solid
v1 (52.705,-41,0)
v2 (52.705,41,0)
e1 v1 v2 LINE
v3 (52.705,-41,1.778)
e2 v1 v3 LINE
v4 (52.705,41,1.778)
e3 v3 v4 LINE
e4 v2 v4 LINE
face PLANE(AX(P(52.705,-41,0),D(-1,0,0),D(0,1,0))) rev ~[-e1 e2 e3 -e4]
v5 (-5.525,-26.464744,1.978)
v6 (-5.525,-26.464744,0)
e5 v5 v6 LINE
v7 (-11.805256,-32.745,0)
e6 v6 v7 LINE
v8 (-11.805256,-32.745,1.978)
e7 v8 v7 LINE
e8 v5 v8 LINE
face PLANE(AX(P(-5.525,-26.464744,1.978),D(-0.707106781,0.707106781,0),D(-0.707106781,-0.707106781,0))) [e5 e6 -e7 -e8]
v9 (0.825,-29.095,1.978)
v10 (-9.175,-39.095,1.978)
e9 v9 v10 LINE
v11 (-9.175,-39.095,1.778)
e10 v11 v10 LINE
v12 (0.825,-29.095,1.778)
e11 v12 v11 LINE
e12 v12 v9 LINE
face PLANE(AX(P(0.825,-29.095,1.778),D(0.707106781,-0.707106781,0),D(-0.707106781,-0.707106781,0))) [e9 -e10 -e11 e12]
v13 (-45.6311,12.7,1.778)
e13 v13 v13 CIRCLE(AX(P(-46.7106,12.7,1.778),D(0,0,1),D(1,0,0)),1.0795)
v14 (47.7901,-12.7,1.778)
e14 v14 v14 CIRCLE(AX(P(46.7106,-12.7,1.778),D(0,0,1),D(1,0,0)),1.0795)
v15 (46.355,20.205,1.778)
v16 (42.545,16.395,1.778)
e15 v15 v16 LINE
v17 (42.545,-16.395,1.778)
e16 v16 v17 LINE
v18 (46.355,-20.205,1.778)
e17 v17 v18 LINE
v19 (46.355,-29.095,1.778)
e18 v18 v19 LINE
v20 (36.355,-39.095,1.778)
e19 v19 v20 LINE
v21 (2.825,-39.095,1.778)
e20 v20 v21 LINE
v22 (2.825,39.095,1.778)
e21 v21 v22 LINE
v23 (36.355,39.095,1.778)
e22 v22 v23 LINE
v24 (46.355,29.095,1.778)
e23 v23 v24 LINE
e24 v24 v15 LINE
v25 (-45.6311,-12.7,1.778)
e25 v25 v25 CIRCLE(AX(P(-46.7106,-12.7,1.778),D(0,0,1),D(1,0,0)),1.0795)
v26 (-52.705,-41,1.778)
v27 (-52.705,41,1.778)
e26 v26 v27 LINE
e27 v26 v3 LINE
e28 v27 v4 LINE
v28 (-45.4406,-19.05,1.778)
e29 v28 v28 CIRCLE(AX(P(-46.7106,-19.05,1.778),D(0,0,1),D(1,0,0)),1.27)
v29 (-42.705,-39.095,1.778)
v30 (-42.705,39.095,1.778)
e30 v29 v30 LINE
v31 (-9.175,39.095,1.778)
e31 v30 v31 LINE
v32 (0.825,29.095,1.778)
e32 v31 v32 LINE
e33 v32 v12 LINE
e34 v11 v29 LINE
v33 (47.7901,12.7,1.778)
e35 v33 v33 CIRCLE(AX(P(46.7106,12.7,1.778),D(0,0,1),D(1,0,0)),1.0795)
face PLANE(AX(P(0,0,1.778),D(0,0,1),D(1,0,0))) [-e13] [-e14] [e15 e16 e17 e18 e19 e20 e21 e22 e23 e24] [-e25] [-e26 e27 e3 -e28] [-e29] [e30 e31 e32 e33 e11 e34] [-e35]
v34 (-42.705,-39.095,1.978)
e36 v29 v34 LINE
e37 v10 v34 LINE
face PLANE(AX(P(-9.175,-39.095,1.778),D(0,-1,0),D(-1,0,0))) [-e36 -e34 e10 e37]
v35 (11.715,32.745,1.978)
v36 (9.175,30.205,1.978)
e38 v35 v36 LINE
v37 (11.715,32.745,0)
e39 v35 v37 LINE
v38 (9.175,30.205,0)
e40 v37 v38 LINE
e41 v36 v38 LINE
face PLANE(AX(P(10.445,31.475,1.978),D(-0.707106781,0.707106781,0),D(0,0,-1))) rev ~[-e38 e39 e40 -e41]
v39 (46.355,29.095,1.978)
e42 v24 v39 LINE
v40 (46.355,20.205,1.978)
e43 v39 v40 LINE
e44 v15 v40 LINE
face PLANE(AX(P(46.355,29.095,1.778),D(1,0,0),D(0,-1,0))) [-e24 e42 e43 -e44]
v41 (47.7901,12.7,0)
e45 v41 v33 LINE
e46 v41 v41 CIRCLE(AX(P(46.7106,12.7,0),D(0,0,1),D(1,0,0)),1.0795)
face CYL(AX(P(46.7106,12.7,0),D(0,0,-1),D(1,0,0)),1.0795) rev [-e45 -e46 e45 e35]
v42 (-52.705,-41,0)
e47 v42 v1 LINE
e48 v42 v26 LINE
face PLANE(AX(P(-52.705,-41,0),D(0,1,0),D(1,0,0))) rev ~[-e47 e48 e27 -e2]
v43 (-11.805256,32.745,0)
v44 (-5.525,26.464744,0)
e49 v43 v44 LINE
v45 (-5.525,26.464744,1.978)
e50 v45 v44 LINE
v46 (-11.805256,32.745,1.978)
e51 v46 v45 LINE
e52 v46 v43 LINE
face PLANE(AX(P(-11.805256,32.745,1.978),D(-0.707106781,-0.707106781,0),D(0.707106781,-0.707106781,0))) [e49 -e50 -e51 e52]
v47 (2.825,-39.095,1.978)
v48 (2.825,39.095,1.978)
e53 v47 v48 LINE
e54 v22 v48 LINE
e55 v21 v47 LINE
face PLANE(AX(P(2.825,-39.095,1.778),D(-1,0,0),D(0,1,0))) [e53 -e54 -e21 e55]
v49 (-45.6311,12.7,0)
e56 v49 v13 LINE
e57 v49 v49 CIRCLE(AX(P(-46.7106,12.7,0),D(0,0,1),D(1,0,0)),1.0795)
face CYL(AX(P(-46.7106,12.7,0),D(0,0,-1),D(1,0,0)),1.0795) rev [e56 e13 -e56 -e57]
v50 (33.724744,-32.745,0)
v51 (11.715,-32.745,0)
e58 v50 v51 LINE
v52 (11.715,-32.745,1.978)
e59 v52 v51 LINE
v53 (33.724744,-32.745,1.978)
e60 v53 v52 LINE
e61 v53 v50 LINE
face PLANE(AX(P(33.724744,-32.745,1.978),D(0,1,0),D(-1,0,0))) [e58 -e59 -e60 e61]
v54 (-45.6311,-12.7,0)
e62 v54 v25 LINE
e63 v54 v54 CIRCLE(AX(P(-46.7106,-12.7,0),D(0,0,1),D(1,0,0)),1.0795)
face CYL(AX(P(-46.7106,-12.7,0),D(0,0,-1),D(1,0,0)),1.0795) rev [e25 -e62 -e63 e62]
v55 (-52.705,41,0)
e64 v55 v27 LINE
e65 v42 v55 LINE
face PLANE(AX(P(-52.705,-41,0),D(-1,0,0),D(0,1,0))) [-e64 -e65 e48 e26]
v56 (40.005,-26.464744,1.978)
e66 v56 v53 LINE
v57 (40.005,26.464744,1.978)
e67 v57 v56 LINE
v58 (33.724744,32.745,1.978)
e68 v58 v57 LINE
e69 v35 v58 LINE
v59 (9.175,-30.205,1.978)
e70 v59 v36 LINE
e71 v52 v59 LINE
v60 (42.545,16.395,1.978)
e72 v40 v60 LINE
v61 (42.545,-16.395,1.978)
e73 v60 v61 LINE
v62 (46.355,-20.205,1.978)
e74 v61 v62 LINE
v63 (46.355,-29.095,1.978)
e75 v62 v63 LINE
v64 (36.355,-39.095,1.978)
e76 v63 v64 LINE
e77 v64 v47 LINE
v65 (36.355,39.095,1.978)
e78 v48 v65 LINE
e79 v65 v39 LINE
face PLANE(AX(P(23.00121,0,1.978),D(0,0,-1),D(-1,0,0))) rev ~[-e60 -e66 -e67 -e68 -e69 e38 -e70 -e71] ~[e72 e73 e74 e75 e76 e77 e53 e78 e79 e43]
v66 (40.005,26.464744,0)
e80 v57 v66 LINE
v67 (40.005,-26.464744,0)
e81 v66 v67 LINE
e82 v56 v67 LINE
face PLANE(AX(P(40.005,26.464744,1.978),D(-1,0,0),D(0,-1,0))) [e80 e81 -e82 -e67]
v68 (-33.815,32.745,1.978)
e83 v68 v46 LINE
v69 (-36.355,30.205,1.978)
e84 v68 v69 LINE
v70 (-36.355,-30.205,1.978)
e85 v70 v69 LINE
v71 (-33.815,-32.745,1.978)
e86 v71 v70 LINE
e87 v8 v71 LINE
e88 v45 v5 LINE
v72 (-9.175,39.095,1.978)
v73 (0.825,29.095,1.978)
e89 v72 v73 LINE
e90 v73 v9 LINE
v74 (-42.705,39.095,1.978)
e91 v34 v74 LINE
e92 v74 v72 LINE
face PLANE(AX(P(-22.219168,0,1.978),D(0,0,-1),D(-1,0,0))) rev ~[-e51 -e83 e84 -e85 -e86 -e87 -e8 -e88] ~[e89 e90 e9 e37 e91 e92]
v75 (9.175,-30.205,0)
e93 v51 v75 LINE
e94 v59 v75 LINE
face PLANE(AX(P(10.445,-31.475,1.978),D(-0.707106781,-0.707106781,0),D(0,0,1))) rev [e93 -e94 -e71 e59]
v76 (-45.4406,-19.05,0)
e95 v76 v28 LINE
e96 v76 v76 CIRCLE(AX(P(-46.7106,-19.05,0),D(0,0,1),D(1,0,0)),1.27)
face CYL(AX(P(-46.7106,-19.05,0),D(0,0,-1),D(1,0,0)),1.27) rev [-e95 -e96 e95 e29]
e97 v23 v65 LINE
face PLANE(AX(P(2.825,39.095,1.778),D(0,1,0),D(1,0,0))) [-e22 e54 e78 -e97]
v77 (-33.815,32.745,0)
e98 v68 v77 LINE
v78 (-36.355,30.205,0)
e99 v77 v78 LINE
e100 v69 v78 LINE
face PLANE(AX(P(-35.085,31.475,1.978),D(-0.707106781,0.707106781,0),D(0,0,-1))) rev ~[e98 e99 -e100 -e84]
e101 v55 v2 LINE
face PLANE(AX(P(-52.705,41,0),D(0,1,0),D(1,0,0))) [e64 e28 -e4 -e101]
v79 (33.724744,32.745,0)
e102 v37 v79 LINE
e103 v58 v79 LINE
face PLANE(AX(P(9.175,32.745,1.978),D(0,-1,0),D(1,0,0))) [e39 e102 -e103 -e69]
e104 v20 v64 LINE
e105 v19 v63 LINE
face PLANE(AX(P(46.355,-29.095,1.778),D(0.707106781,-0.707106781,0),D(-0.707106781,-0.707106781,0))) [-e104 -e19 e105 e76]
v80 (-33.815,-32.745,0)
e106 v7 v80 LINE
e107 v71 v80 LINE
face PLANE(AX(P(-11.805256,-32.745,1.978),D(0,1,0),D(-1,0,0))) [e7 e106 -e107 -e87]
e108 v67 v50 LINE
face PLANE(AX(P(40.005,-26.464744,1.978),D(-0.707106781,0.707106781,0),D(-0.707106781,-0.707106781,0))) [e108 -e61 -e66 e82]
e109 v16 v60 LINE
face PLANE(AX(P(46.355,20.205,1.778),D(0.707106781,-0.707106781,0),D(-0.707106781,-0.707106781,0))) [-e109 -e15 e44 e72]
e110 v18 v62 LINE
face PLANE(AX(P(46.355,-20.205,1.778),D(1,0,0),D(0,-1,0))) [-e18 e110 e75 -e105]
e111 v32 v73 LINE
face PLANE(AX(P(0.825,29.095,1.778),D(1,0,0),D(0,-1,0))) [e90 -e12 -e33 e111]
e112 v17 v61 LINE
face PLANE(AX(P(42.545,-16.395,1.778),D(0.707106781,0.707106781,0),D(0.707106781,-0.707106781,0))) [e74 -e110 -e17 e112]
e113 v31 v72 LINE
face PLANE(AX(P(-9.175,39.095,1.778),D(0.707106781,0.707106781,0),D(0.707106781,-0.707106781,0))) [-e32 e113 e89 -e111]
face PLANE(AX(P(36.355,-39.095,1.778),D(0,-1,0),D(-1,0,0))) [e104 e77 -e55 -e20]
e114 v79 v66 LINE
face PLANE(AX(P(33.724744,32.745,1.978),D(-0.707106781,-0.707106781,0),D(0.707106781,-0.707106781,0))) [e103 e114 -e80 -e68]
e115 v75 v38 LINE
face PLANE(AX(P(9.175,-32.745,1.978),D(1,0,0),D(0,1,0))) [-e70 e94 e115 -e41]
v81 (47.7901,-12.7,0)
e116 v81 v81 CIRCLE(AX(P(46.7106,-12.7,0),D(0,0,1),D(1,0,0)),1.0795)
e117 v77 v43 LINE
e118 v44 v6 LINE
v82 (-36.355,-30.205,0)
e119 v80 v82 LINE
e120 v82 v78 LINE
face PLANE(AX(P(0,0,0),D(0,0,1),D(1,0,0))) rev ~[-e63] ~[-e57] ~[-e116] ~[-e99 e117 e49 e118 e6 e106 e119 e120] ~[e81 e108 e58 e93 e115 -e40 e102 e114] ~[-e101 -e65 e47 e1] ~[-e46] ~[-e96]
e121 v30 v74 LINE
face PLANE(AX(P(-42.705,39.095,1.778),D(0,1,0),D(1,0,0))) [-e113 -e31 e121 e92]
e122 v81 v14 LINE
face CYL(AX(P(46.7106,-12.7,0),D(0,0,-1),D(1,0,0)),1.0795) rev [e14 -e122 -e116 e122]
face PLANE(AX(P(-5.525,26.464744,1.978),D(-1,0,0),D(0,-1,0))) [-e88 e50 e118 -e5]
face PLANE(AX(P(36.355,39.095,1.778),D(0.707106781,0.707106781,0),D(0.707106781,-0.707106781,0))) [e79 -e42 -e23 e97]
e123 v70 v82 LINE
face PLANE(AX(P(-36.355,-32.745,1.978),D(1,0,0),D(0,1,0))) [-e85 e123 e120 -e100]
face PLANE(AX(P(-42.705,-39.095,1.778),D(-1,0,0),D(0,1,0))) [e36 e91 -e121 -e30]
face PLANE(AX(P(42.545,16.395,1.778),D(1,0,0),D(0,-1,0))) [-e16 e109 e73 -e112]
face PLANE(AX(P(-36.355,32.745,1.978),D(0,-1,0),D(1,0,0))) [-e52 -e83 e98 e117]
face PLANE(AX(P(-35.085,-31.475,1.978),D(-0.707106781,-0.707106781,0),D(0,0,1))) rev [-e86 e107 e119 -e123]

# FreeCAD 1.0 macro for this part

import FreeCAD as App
import Part
import Sketcher

V = App.Vector
Q = App.Units.Quantity


def edges_at(feature, points):
    """Names of the edges that pass closest to the given points."""
    edges = feature.Shape.Edges
    near = lambda p: min(range(len(edges)), key=lambda i: edges[i].distToShape(Part.Vertex(*p))[0])
    return sorted({f"Edge{near(p) + 1}" for p in points})

doc = App.newDocument("Part")
body = doc.addObject("PartDesign::Body", "Body")

# Sketch on XY plane
sketch1 = body.newObject("Sketcher::SketchObject", "Sketch")
sketch1.AttachmentSupport = (doc.getObject("XY_Plane"), [""])
sketch1.MapMode = "FlatFace"
sketch1.addGeometry(Part.LineSegment(V(-52.7, 41, 0), V(-52.7, -41, 0)), False)
sketch1.addGeometry(Part.LineSegment(V(-52.7, -41, 0), V(52.7, -41, 0)), False)
sketch1.addGeometry(Part.LineSegment(V(52.7, -41, 0), V(52.7, 41, 0)), False)
sketch1.addGeometry(Part.LineSegment(V(52.7, 41, 0), V(-52.7, 41, 0)), False)
sketch1.addGeometry(Part.Circle(V(-46.7, -19.1, 0), V(0, 0, 1), 1.3), False)
sketch1.addGeometry(Part.Circle(V(-46.7, -12.7, 0), V(0, 0, 1), 1.1), False)
sketch1.addGeometry(Part.Circle(V(46.7, -12.7, 0), V(0, 0, 1), 1.1), False)
sketch1.addGeometry(Part.Circle(V(-46.7, 12.7, 0), V(0, 0, 1), 1.1), False)
sketch1.addGeometry(Part.Circle(V(46.7, 12.7, 0), V(0, 0, 1), 1.1), False)
sketch1.addConstraint(Sketcher.Constraint("Coincident", 0, 2, 1, 1))
sketch1.addConstraint(Sketcher.Constraint("Coincident", 1, 2, 2, 1))
sketch1.addConstraint(Sketcher.Constraint("Coincident", 2, 2, 3, 1))
sketch1.addConstraint(Sketcher.Constraint("Coincident", 3, 2, 0, 1))
sketch1.addConstraint(Sketcher.Constraint("Vertical", 0))
sketch1.addConstraint(Sketcher.Constraint("Horizontal", 1))
sketch1.addConstraint(Sketcher.Constraint("Vertical", 2))
sketch1.addConstraint(Sketcher.Constraint("Horizontal", 3))
sketch1.addConstraint(Sketcher.Constraint("Equal", 5, 6))
sketch1.addConstraint(Sketcher.Constraint("Equal", 6, 7))
sketch1.addConstraint(Sketcher.Constraint("Equal", 7, 8))
sketch1.addConstraint(Sketcher.Constraint("Symmetric", 6, 3, 7, 3, -1, 1))
sketch1.addConstraint(Sketcher.Constraint("Symmetric", 5, 3, 8, 3, -1, 1))
sketch1.addConstraint(Sketcher.Constraint("Symmetric", 0, 2, 2, 2, -1, 1))
sketch1.addConstraint(Sketcher.Constraint("Symmetric", 5, 3, 6, 3, -2))
sketch1.addConstraint(Sketcher.Constraint("Vertical", 4, 3, 5, 3))
sketch1.addConstraint(Sketcher.Constraint("Diameter", 4, Q("0.1 in")))
sketch1.addConstraint(Sketcher.Constraint("Diameter", 5, Q("0.085 in")))
sketch1.addConstraint(Sketcher.Constraint("DistanceY", 5, 3, 7, 3, Q("1 in")))
sketch1.addConstraint(Sketcher.Constraint("DistanceX", 1, 1, 1, 2, Q("4.15 in")))
sketch1.addConstraint(Sketcher.Constraint("DistanceY", 4, 3, -1, 1, Q("0.75 in")))
sketch1.addConstraint(Sketcher.Constraint("DistanceX", 4, 3, -1, 1, Q("1.839 in")))
sketch1.addConstraint(Sketcher.Constraint("DistanceY", 0, 2, 0, 1, 82.0))
pad1 = body.newObject("PartDesign::Pad", "Pad")
pad1.Profile = sketch1
pad1.Length = Q("0.07 in")

# Sketch on XY plane
sketch2 = body.newObject("Sketcher::SketchObject", "Sketch001")
sketch2.AttachmentSupport = (doc.getObject("XY_Plane"), [""])
sketch2.MapMode = "FlatFace"
sketch2.AttachmentOffset = App.Placement(V(0, 0, 0.07 * 25.4), App.Rotation())
sketch2.addGeometry(Part.LineSegment(V(1, 29, 0), V(-9, 39, 0)), False)
sketch2.addGeometry(Part.LineSegment(V(-9, 39, 0), V(-43, 39, 0)), False)
sketch2.addGeometry(Part.LineSegment(V(-43, 39, 0), V(-43, -39, 0)), False)
sketch2.addGeometry(Part.LineSegment(V(-43, -39, 0), V(-9, -39, 0)), False)
sketch2.addGeometry(Part.LineSegment(V(-9, -39, 0), V(1, -29, 0)), False)
sketch2.addGeometry(Part.LineSegment(V(1, -29, 0), V(1, 29, 0)), False)
sketch2.addGeometry(Part.LineSegment(V(43, 16, 0), V(46, 20, 0)), False)
sketch2.addGeometry(Part.LineSegment(V(46, 20, 0), V(46, 29, 0)), False)
sketch2.addGeometry(Part.LineSegment(V(46, 29, 0), V(36, 39, 0)), False)
sketch2.addGeometry(Part.LineSegment(V(36, 39, 0), V(3, 39, 0)), False)
sketch2.addGeometry(Part.LineSegment(V(3, 39, 0), V(3, -39, 0)), False)
sketch2.addGeometry(Part.LineSegment(V(3, -39, 0), V(36, -39, 0)), False)
sketch2.addGeometry(Part.LineSegment(V(36, -39, 0), V(46, -29, 0)), False)
sketch2.addGeometry(Part.LineSegment(V(46, -29, 0), V(46, -20, 0)), False)
sketch2.addGeometry(Part.LineSegment(V(46, -20, 0), V(43, -16, 0)), False)
sketch2.addGeometry(Part.LineSegment(V(43, -16, 0), V(43, 16, 0)), False)
sketch2.addConstraint(Sketcher.Constraint("Coincident", 0, 2, 1, 1))
sketch2.addConstraint(Sketcher.Constraint("Coincident", 1, 2, 2, 1))
sketch2.addConstraint(Sketcher.Constraint("Coincident", 2, 2, 3, 1))
sketch2.addConstraint(Sketcher.Constraint("Coincident", 3, 2, 4, 1))
sketch2.addConstraint(Sketcher.Constraint("Coincident", 4, 2, 5, 1))
sketch2.addConstraint(Sketcher.Constraint("Coincident", 5, 2, 0, 1))
sketch2.addConstraint(Sketcher.Constraint("Coincident", 6, 2, 7, 1))
sketch2.addConstraint(Sketcher.Constraint("Coincident", 7, 2, 8, 1))
sketch2.addConstraint(Sketcher.Constraint("Coincident", 8, 2, 9, 1))
sketch2.addConstraint(Sketcher.Constraint("Coincident", 9, 2, 10, 1))
sketch2.addConstraint(Sketcher.Constraint("Coincident", 10, 2, 11, 1))
sketch2.addConstraint(Sketcher.Constraint("Coincident", 11, 2, 12, 1))
sketch2.addConstraint(Sketcher.Constraint("Coincident", 12, 2, 13, 1))
sketch2.addConstraint(Sketcher.Constraint("Coincident", 13, 2, 14, 1))
sketch2.addConstraint(Sketcher.Constraint("Coincident", 14, 2, 15, 1))
sketch2.addConstraint(Sketcher.Constraint("Coincident", 15, 2, 6, 1))
sketch2.addConstraint(Sketcher.Constraint("Horizontal", 1))
sketch2.addConstraint(Sketcher.Constraint("Vertical", 2))
sketch2.addConstraint(Sketcher.Constraint("Horizontal", 3))
sketch2.addConstraint(Sketcher.Constraint("Vertical", 5))
sketch2.addConstraint(Sketcher.Constraint("Vertical", 7))
sketch2.addConstraint(Sketcher.Constraint("Horizontal", 9))
sketch2.addConstraint(Sketcher.Constraint("Vertical", 10))
sketch2.addConstraint(Sketcher.Constraint("Horizontal", 11))
sketch2.addConstraint(Sketcher.Constraint("Vertical", 13))
sketch2.addConstraint(Sketcher.Constraint("Vertical", 15))
sketch2.addConstraint(Sketcher.Constraint("Symmetric", 0, 2, 3, 2, -1))
sketch2.addConstraint(Sketcher.Constraint("Symmetric", 8, 2, 11, 2, -1))
sketch2.addConstraint(Sketcher.Constraint("Symmetric", 7, 2, 12, 2, -1))
sketch2.addConstraint(Sketcher.Constraint("Perpendicular", 0, 4))
sketch2.addConstraint(Sketcher.Constraint("Parallel", 4, 6))
sketch2.addConstraint(Sketcher.Constraint("Perpendicular", 6, 8))
sketch2.addConstraint(Sketcher.Constraint("Perpendicular", 8, 12))
sketch2.addConstraint(Sketcher.Constraint("Perpendicular", 12, 14))
sketch2.addConstraint(Sketcher.Constraint("Horizontal", 5, 2, 7, 2))
sketch2.addConstraint(Sketcher.Constraint("Horizontal", 1, 2, 8, 2))
sketch2.addConstraint(Sketcher.Constraint("Equal", 3, 9))
sketch2.addConstraint(Sketcher.Constraint("Equal", 7, 13))
sketch2.addConstraint(Sketcher.Constraint("DistanceY", 7, 1, 7, 2, Q("0.35 in")))
sketch2.addConstraint(Sketcher.Constraint("DistanceY", 12, 2, 14, 2, Q("0.5 in")))
sketch2.addConstraint(Sketcher.Constraint("DistanceX", -1, 1, 6, 2, Q("1.825 in")))
sketch2.addConstraint(Sketcher.Constraint("DistanceX", 1, 2, 1, 1, 33.53))
sketch2.addConstraint(Sketcher.Constraint("DistanceY", 2, 2, 2, 1, 78.19))
sketch2.addConstraint(Sketcher.Constraint("DistanceY", 5, 1, 5, 2, 58.19))
sketch2.addConstraint(Sketcher.Constraint("DistanceX", 0, 2, -1, 1, 9.175))
pad2 = body.newObject("PartDesign::Pad", "Pad001")
pad2.Profile = sketch2
pad2.Length = 0.2

# Sketch on XY plane
sketch3 = body.newObject("Sketcher::SketchObject", "Sketch002")
sketch3.AttachmentSupport = (doc.getObject("XY_Plane"), [""])
sketch3.MapMode = "FlatFace"
sketch3.AttachmentOffset = App.Placement(V(0, 0, 1.978), App.Rotation())
sketch3.addGeometry(Part.LineSegment(V(-36, 33, 0), V(-36, -33, 0)), False)
sketch3.addGeometry(Part.LineSegment(V(-36, -33, 0), V(-12, -33, 0)), False)
sketch3.addGeometry(Part.LineSegment(V(-12, -33, 0), V(-6, -26, 0)), False)
sketch3.addGeometry(Part.LineSegment(V(-6, -26, 0), V(-6, 26, 0)), False)
sketch3.addGeometry(Part.LineSegment(V(-6, 26, 0), V(-12, 33, 0)), False)
sketch3.addGeometry(Part.LineSegment(V(-12, 33, 0), V(-36, 33, 0)), False)
sketch3.addGeometry(Part.LineSegment(V(9, 33, 0), V(9, -33, 0)), False)
sketch3.addGeometry(Part.LineSegment(V(9, -33, 0), V(34, -33, 0)), False)
sketch3.addGeometry(Part.LineSegment(V(34, -33, 0), V(40, -26, 0)), False)
sketch3.addGeometry(Part.LineSegment(V(40, -26, 0), V(40, 26, 0)), False)
sketch3.addGeometry(Part.LineSegment(V(40, 26, 0), V(34, 33, 0)), False)
sketch3.addGeometry(Part.LineSegment(V(34, 33, 0), V(9, 33, 0)), False)
sketch3.addConstraint(Sketcher.Constraint("Coincident", 0, 2, 1, 1))
sketch3.addConstraint(Sketcher.Constraint("Coincident", 1, 2, 2, 1))
sketch3.addConstraint(Sketcher.Constraint("Coincident", 2, 2, 3, 1))
sketch3.addConstraint(Sketcher.Constraint("Coincident", 3, 2, 4, 1))
sketch3.addConstraint(Sketcher.Constraint("Coincident", 4, 2, 5, 1))
sketch3.addConstraint(Sketcher.Constraint("Coincident", 5, 2, 0, 1))
sketch3.addConstraint(Sketcher.Constraint("Coincident", 6, 2, 7, 1))
sketch3.addConstraint(Sketcher.Constraint("Coincident", 7, 2, 8, 1))
sketch3.addConstraint(Sketcher.Constraint("Coincident", 8, 2, 9, 1))
sketch3.addConstraint(Sketcher.Constraint("Coincident", 9, 2, 10, 1))
sketch3.addConstraint(Sketcher.Constraint("Coincident", 10, 2, 11, 1))
sketch3.addConstraint(Sketcher.Constraint("Coincident", 11, 2, 6, 1))
sketch3.addConstraint(Sketcher.Constraint("Vertical", 0))
sketch3.addConstraint(Sketcher.Constraint("Horizontal", 1))
sketch3.addConstraint(Sketcher.Constraint("Vertical", 3))
sketch3.addConstraint(Sketcher.Constraint("Horizontal", 5))
sketch3.addConstraint(Sketcher.Constraint("Vertical", 6))
sketch3.addConstraint(Sketcher.Constraint("Horizontal", 7))
sketch3.addConstraint(Sketcher.Constraint("Vertical", 9))
sketch3.addConstraint(Sketcher.Constraint("Horizontal", 11))
sketch3.addConstraint(Sketcher.Constraint("Symmetric", 1, 2, 4, 2, -1))
sketch3.addConstraint(Sketcher.Constraint("Symmetric", 7, 2, 10, 2, -1))
sketch3.addConstraint(Sketcher.Constraint("Perpendicular", 2, 4))
sketch3.addConstraint(Sketcher.Constraint("Perpendicular", 4, 8))
sketch3.addConstraint(Sketcher.Constraint("Perpendicular", 8, 10))
sketch3.addConstraint(Sketcher.Constraint("Horizontal", 1, 2, 6, 2))
sketch3.addConstraint(Sketcher.Constraint("Horizontal", 2, 2, 8, 2))
sketch3.addConstraint(Sketcher.Constraint("Equal", 5, 7))
sketch3.addConstraint(Sketcher.Constraint("Equal", 2, 4))
sketch3.addConstraint(Sketcher.Constraint("DistanceX", -1, 1, 8, 2, Q("1.575 in")))
sketch3.addConstraint(Sketcher.Constraint("DistanceY", 0, 2, 0, 1, 65.49))
sketch3.addConstraint(Sketcher.Constraint("DistanceX", 0, 2, -1, 1, 36.355))
sketch3.addConstraint(Sketcher.Constraint("DistanceX", 2, 2, -1, 1, 5.525))
sketch3.addConstraint(Sketcher.Constraint("DistanceX", 1, 1, 1, 2, 24.549744))
pocket1 = body.newObject("PartDesign::Pocket", "Pocket")
pocket1.Profile = sketch3
pocket1.Type = "ThroughAll"
doc.recompute()

chamfer = body.newObject("PartDesign::Chamfer", "Chamfer")
chamfer.Base = (pocket1, edges_at(pocket1, [
    (-36.355, -32.745, 0.989),
    (-36.355, 32.745, 0.989),
    (9.175, -32.745, 0.989),
    (9.175, 32.745, 0.989),
]))
chamfer.Size = Q("0.1 in")

doc.recompute()
